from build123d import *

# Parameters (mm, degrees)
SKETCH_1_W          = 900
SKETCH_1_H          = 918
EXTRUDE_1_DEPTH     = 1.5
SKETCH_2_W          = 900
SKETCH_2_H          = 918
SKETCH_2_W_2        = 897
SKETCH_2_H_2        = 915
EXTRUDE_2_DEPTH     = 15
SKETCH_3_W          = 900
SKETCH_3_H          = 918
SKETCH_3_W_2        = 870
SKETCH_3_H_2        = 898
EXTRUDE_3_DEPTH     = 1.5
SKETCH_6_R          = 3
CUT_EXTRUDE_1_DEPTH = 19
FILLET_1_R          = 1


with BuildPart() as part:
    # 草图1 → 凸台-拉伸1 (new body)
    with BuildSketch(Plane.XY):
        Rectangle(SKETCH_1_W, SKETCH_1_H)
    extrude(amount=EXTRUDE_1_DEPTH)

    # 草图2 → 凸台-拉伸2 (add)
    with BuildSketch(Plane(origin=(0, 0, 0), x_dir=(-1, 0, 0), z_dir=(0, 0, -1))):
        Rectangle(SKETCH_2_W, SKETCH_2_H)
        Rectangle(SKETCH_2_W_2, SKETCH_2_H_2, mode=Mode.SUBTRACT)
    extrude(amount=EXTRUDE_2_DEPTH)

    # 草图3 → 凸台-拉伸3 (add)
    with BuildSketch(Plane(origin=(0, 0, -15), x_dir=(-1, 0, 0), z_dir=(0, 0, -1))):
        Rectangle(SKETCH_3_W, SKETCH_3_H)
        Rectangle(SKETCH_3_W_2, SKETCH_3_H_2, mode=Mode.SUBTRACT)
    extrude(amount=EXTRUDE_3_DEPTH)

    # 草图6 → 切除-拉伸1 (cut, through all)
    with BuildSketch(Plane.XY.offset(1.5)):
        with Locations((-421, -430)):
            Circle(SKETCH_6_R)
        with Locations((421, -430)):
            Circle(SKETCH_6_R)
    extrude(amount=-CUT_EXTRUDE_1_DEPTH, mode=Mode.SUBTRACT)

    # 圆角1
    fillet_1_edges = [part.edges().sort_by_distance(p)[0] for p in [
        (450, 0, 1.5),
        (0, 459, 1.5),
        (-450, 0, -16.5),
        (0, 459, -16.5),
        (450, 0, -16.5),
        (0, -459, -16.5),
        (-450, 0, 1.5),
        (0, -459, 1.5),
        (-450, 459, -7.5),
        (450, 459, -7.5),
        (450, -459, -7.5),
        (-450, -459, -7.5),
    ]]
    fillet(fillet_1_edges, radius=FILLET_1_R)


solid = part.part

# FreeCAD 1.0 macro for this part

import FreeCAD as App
import Part
import Sketcher


def edges_at(feature, points):
    """Names of the edges that pass closest to the given points."""
    edges = feature.Shape.Edges
    near = lambda p: min(range(len(edges)), key=lambda i: edges[i].distToShape(Part.Vertex(*p))[0])
    return sorted({f"Edge{near(p) + 1}" for p in points})

doc = App.newDocument("Part")
body = doc.addObject("PartDesign::Body", "Body")

# Sketch on XY plane
sketch1 = body.newObject("Sketcher::SketchObject", "Sketch")
sketch1.AttachmentSupport = (doc.getObject("XY_Plane"), [""])
sketch1.MapMode = "FlatFace"
sketch1.addGeometry(Part.LineSegment(App.Vector(-450, 459, 0), App.Vector(-450, -459, 0)), False)
sketch1.addGeometry(Part.LineSegment(App.Vector(-450, -459, 0), App.Vector(450, -459, 0)), False)
sketch1.addGeometry(Part.LineSegment(App.Vector(450, -459, 0), App.Vector(450, 459, 0)), False)
sketch1.addGeometry(Part.LineSegment(App.Vector(450, 459, 0), App.Vector(-450, 459, 0)), False)
sketch1.addConstraint(Sketcher.Constraint("Coincident", 0, 2, 1, 1))
sketch1.addConstraint(Sketcher.Constraint("Coincident", 1, 2, 2, 1))
sketch1.addConstraint(Sketcher.Constraint("Coincident", 2, 2, 3, 1))
sketch1.addConstraint(Sketcher.Constraint("Coincident", 3, 2, 0, 1))
sketch1.addConstraint(Sketcher.Constraint("Vertical", 0))
sketch1.addConstraint(Sketcher.Constraint("Horizontal", 1))
sketch1.addConstraint(Sketcher.Constraint("Vertical", 2))
sketch1.addConstraint(Sketcher.Constraint("Horizontal", 3))
sketch1.addConstraint(Sketcher.Constraint("Symmetric", 0, 2, 2, 2, -1, 1))
sketch1.addConstraint(Sketcher.Constraint("DistanceX", 1, 1, 1, 2, 900.0))
sketch1.addConstraint(Sketcher.Constraint("DistanceY", 0, 2, 0, 1, 918.0))
pad1 = body.newObject("PartDesign::Pad", "Pad")
pad1.Profile = sketch1
pad1.Length = 1.5

# Sketch on XY plane
sketch2 = body.newObject("Sketcher::SketchObject", "Sketch001")
sketch2.AttachmentSupport = (doc.getObject("XY_Plane"), [""])
sketch2.MapMode = "FlatFace"
sketch2.addGeometry(Part.LineSegment(App.Vector(450, 459, 0), App.Vector(450, -459, 0)), False)
sketch2.addGeometry(Part.LineSegment(App.Vector(450, -459, 0), App.Vector(-450, -459, 0)), False)
sketch2.addGeometry(Part.LineSegment(App.Vector(-450, -459, 0), App.Vector(-450, 459, 0)), False)
sketch2.addGeometry(Part.LineSegment(App.Vector(-450, 459, 0), App.Vector(450, 459, 0)), False)
sketch2.addGeometry(Part.LineSegment(App.Vector(-448, -458, 0), App.Vector(448, -458, 0)), False)
sketch2.addGeometry(Part.LineSegment(App.Vector(448, -458, 0), App.Vector(448, 458, 0)), False)
sketch2.addGeometry(Part.LineSegment(App.Vector(448, 458, 0), App.Vector(-448, 458, 0)), False)
sketch2.addGeometry(Part.LineSegment(App.Vector(-448, 458, 0), App.Vector(-448, -458, 0)), False)
sketch2.addConstraint(Sketcher.Constraint("Coincident", 0, 2, 1, 1))
sketch2.addConstraint(Sketcher.Constraint("Coincident", 1, 2, 2, 1))
sketch2.addConstraint(Sketcher.Constraint("Coincident", 2, 2, 3, 1))
sketch2.addConstraint(Sketcher.Constraint("Coincident", 3, 2, 0, 1))
sketch2.addConstraint(Sketcher.Constraint("Coincident", 4, 2, 5, 1))
sketch2.addConstraint(Sketcher.Constraint("Coincident", 5, 2, 6, 1))
sketch2.addConstraint(Sketcher.Constraint("Coincident", 6, 2, 7, 1))
sketch2.addConstraint(Sketcher.Constraint("Coincident", 7, 2, 4, 1))
sketch2.addConstraint(Sketcher.Constraint("Vertical", 0))
sketch2.addConstraint(Sketcher.Constraint("Horizontal", 1))
sketch2.addConstraint(Sketcher.Constraint("Vertical", 2))
sketch2.addConstraint(Sketcher.Constraint("Horizontal", 3))
sketch2.addConstraint(Sketcher.Constraint("Horizontal", 4))
sketch2.addConstraint(Sketcher.Constraint("Vertical", 5))
sketch2.addConstraint(Sketcher.Constraint("Horizontal", 6))
sketch2.addConstraint(Sketcher.Constraint("Vertical", 7))
sketch2.addConstraint(Sketcher.Constraint("Symmetric", 0, 2, 2, 2, -1, 1))
sketch2.addConstraint(Sketcher.Constraint("Symmetric", 4, 2, 6, 2, -1, 1))
sketch2.addConstraint(Sketcher.Constraint("DistanceX", 1, 2, 1, 1, 900.0))
sketch2.addConstraint(Sketcher.Constraint("DistanceX", 4, 1, 4, 2, 897.0))
sketch2.addConstraint(Sketcher.Constraint("DistanceY", 0, 2, 0, 1, 918.0))
sketch2.addConstraint(Sketcher.Constraint("DistanceY", 5, 1, 5, 2, 915.0))
pad2 = body.newObject("PartDesign::Pad", "Pad001")
pad2.Profile = sketch2
pad2.Length = 15
pad2.Reversed = True

# Sketch on XY plane
sketch3 = body.newObject("Sketcher::SketchObject", "Sketch002")
sketch3.AttachmentSupport = (doc.getObject("XY_Plane"), [""])
sketch3.MapMode = "FlatFace"
sketch3.AttachmentOffset = App.Placement(App.Vector(0, 0, -15), App.Rotation())
sketch3.addGeometry(Part.LineSegment(App.Vector(450, 459, 0), App.Vector(450, -459, 0)), False)
sketch3.addGeometry(Part.LineSegment(App.Vector(450, -459, 0), App.Vector(-450, -459, 0)), False)
sketch3.addGeometry(Part.LineSegment(App.Vector(-450, -459, 0), App.Vector(-450, 459, 0)), False)
sketch3.addGeometry(Part.LineSegment(App.Vector(-450, 459, 0), App.Vector(450, 459, 0)), False)
sketch3.addGeometry(Part.LineSegment(App.Vector(-435, -449, 0), App.Vector(435, -449, 0)), False)
sketch3.addGeometry(Part.LineSegment(App.Vector(435, -449, 0), App.Vector(435, 449, 0)), False)
sketch3.addGeometry(Part.LineSegment(App.Vector(435, 449, 0), App.Vector(-435, 449, 0)), False)
sketch3.addGeometry(Part.LineSegment(App.Vector(-435, 449, 0), App.Vector(-435, -449, 0)), False)
sketch3.addConstraint(Sketcher.Constraint("Coincident", 0, 2, 1, 1))
sketch3.addConstraint(Sketcher.Constraint("Coincident", 1, 2, 2, 1))
sketch3.addConstraint(Sketcher.Constraint("Coincident", 2, 2, 3, 1))
sketch3.addConstraint(Sketcher.Constraint("Coincident", 3, 2, 0, 1))
sketch3.addConstraint(Sketcher.Constraint("Coincident", 4, 2, 5, 1))
sketch3.addConstraint(Sketcher.Constraint("Coincident", 5, 2, 6, 1))
sketch3.addConstraint(Sketcher.Constraint("Coincident", 6, 2, 7, 1))
sketch3.addConstraint(Sketcher.Constraint("Coincident", 7, 2, 4, 1))
sketch3.addConstraint(Sketcher.Constraint("Vertical", 0))
sketch3.addConstraint(Sketcher.Constraint("Horizontal", 1))
sketch3.addConstraint(Sketcher.Constraint("Vertical", 2))
sketch3.addConstraint(Sketcher.Constraint("Horizontal", 3))
sketch3.addConstraint(Sketcher.Constraint("Horizontal", 4))
sketch3.addConstraint(Sketcher.Constraint("Vertical", 5))
sketch3.addConstraint(Sketcher.Constraint("Horizontal", 6))
sketch3.addConstraint(Sketcher.Constraint("Vertical", 7))
sketch3.addConstraint(Sketcher.Constraint("Symmetric", 0, 2, 2, 2, -1, 1))
sketch3.addConstraint(Sketcher.Constraint("Symmetric", 4, 2, 6, 2, -1, 1))
sketch3.addConstraint(Sketcher.Constraint("DistanceX", 1, 2, 1, 1, 900.0))
sketch3.addConstraint(Sketcher.Constraint("DistanceX", 4, 1, 4, 2, 870.0))
sketch3.addConstraint(Sketcher.Constraint("DistanceY", 0, 2, 0, 1, 918.0))
sketch3.addConstraint(Sketcher.Constraint("DistanceY", 5, 1, 5, 2, 898.0))
pad3 = body.newObject("PartDesign::Pad", "Pad002")
pad3.Profile = sketch3
pad3.Length = 1.5
pad3.Reversed = True

# Sketch on XY plane
sketch4 = body.newObject("Sketcher::SketchObject", "Sketch003")
sketch4.AttachmentSupport = (doc.getObject("XY_Plane"), [""])
sketch4.MapMode = "FlatFace"
sketch4.AttachmentOffset = App.Placement(App.Vector(0, 0, 1.5), App.Rotation())
sketch4.addGeometry(Part.Circle(App.Vector(-421, -430, 0), App.Vector(0, 0, 1), 3), False)
sketch4.addGeometry(Part.Circle(App.Vector(421, -430, 0), App.Vector(0, 0, 1), 3), False)
sketch4.addConstraint(Sketcher.Constraint("Equal", 0, 1))
sketch4.addConstraint(Sketcher.Constraint("Symmetric", 0, 3, 1, 3, -2))
sketch4.addConstraint(Sketcher.Constraint("Diameter", 0, 6.0))
sketch4.addConstraint(Sketcher.Constraint("DistanceX", 0, 3, -1, 1, 421.0))
sketch4.addConstraint(Sketcher.Constraint("DistanceY", 0, 3, -1, 1, 430.0))
pocket1 = body.newObject("PartDesign::Pocket", "Pocket")
pocket1.Profile = sketch4
pocket1.Type = "ThroughAll"
doc.recompute()

fillet = body.newObject("PartDesign::Fillet", "Fillet")
fillet.Base = (pocket1, edges_at(pocket1, [
    (450, 0, 1.5),
    (0, 459, 1.5),
    (-450, 0, -16.5),
    (0, 459, -16.5),
    (450, 0, -16.5),
    (0, -459, -16.5),
    (-450, 0, 1.5),
    (0, -459, 1.5),
    (-450, 459, -7.5),
    (450, 459, -7.5),
    (450, -459, -7.5),
    (-450, -459, -7.5),
]))
fillet.Radius = 1

doc.recompute()
